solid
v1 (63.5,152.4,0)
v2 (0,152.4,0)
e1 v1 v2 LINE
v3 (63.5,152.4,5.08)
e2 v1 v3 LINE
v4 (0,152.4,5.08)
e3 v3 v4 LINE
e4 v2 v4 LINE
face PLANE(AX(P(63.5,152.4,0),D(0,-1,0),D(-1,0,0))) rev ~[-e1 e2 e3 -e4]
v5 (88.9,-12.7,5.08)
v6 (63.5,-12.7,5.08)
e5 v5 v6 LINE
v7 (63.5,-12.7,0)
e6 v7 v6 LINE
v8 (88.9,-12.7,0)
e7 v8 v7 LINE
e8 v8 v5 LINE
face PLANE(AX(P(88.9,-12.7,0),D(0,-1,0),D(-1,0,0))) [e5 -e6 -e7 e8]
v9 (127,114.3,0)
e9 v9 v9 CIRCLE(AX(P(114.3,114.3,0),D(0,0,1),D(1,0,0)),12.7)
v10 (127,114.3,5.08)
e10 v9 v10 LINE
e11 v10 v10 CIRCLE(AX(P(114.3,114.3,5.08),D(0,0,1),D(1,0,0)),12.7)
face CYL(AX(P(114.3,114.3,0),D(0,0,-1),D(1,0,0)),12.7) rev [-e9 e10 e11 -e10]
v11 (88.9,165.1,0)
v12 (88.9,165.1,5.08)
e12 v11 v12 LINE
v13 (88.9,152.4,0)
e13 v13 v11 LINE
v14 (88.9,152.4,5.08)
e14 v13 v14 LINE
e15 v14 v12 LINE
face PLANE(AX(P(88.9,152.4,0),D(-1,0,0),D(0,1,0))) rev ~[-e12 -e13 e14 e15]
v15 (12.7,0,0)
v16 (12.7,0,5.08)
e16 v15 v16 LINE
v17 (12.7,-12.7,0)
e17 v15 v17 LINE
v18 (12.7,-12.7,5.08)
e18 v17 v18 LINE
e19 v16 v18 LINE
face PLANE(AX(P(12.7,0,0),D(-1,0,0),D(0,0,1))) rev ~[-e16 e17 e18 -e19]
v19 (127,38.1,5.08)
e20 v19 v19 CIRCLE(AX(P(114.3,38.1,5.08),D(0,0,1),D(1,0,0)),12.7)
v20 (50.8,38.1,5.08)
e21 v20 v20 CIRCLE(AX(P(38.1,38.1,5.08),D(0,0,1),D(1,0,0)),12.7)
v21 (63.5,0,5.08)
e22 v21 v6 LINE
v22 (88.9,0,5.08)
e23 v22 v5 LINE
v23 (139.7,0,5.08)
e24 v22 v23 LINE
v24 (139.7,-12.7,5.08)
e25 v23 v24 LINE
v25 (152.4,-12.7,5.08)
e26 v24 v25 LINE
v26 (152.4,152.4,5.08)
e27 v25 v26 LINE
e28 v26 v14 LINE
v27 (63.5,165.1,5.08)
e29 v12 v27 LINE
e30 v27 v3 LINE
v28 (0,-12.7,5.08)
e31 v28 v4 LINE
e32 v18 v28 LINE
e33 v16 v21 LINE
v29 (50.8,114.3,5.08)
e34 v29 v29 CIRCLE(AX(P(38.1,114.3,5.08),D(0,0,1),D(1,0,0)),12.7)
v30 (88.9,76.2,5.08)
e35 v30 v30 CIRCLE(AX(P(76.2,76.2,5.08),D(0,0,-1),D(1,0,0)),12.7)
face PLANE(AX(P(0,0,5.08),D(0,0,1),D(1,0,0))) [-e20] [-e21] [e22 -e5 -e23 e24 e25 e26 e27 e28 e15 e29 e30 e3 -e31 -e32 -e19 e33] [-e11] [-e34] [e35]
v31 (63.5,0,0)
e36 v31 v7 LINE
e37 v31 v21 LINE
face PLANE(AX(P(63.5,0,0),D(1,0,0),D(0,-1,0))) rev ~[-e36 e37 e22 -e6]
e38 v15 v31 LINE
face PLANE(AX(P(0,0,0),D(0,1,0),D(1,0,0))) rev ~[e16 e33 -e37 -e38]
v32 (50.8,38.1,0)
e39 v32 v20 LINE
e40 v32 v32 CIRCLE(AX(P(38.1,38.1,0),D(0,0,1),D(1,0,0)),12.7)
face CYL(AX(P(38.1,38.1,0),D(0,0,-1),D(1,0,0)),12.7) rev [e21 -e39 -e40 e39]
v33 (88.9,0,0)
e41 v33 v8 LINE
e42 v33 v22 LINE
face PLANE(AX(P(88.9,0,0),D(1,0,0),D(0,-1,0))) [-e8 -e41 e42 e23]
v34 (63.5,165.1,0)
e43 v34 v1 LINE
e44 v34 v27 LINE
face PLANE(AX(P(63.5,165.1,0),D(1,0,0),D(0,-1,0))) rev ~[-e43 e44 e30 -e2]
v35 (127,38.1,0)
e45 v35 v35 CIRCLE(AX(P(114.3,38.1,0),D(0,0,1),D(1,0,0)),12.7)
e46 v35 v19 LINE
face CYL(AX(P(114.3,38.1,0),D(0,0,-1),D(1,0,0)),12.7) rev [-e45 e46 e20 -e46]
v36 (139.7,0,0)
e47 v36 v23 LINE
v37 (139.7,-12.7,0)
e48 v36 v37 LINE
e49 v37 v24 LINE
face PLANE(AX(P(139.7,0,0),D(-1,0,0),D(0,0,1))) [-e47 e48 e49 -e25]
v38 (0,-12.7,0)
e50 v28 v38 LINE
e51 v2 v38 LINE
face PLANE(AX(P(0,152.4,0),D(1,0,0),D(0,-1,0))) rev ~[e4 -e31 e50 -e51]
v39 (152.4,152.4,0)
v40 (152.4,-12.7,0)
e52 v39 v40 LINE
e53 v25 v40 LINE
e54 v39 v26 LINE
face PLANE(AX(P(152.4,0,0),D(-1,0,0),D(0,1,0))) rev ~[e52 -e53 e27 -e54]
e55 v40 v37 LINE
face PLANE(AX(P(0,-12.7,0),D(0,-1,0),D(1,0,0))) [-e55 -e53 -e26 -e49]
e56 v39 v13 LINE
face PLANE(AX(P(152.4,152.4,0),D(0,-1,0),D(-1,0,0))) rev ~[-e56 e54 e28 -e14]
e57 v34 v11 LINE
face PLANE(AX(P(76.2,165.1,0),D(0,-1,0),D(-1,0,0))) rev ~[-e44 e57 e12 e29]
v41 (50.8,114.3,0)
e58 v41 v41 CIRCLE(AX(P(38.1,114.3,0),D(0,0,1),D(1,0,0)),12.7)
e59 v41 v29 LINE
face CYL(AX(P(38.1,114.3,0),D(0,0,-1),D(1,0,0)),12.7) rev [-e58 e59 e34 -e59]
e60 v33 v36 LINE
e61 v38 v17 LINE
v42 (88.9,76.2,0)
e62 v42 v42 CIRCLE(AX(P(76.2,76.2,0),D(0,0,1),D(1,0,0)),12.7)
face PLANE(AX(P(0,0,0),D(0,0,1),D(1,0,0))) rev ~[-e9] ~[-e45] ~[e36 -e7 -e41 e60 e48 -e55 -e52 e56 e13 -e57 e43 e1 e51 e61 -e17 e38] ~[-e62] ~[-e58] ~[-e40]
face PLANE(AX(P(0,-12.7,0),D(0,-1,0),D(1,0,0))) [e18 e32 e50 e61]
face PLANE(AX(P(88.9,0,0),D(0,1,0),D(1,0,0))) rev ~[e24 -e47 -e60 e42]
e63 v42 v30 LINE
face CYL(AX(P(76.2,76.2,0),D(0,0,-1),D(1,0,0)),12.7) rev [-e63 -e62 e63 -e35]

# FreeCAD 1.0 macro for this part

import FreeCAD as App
import Part
import Sketcher
from FreeCAD import Vector
Q = App.Units.Quantity

doc = App.newDocument("Part")
params = doc.addObject("Spreadsheet::Sheet", "Params")
for row, (alias, value) in enumerate([
    ("sketch1_diameter", "1 in"),
    ("sketch1_width", "1 in"),
    ("sketch1_height", "6 in"),
    ("sketch1_width2", "2.5 in"),
    ("sketch1_height2", "0.5 in"),
    ("pad1_length", "0.2 in"),
    ("sketch2_width", "0.5 in"),
    ("sketch2_height", "0.2 in"),
    ("pad2_length", "0.5 in"),
], start=1):
    params.set(f"A{row}", alias)
    params.set(f"B{row}", "=" + value)
    params.setAlias(f"B{row}", alias)

body = doc.addObject("PartDesign::Body", "Body")

# Sketch on XY plane
sketch1 = body.newObject("Sketcher::SketchObject", "Sketch")
sketch1.AttachmentSupport = (doc.getObject("XY_Plane"), [""])
sketch1.MapMode = "FlatFace"
sketch1.addGeometry([
    Part.LineSegment(Vector(0, 152, 0), Vector(0, 0, 0)),  # 0
    Part.LineSegment(Vector(0, 0, 0), Vector(64, 0, 0)),  # 1
    Part.LineSegment(Vector(64, 0, 0), Vector(64, -13, 0)),  # 2
    Part.LineSegment(Vector(64, -13, 0), Vector(89, -13, 0)),  # 3
    Part.LineSegment(Vector(89, -13, 0), Vector(89, 0, 0)),  # 4
    Part.LineSegment(Vector(89, 0, 0), Vector(152, 0, 0)),  # 5
    Part.LineSegment(Vector(152, 0, 0), Vector(152, 152, 0)),  # 6
    Part.LineSegment(Vector(152, 152, 0), Vector(89, 152, 0)),  # 7
    Part.LineSegment(Vector(89, 152, 0), Vector(89, 165, 0)),  # 8
    Part.LineSegment(Vector(89, 165, 0), Vector(64, 165, 0)),  # 9
    Part.LineSegment(Vector(64, 165, 0), Vector(64, 152, 0)),  # 10
    Part.LineSegment(Vector(64, 152, 0), Vector(0, 152, 0)),  # 11
    Part.Circle(Vector(38, 38, 0), Vector(0, 0, 1), 13),  # 12
    Part.Circle(Vector(38, 114, 0), Vector(0, 0, 1), 13),  # 13
    Part.Circle(Vector(76, 76, 0), Vector(0, 0, 1), 13),  # 14
    Part.Circle(Vector(114, 38, 0), Vector(0, 0, 1), 13),  # 15
    Part.Circle(Vector(114, 114, 0), Vector(0, 0, 1), 13),  # 16
], False)
sketch1.addConstraint([
    Sketcher.Constraint("Coincident", 0, 2, 1, 1),
    Sketcher.Constraint("Coincident", 1, 2, 2, 1),
    Sketcher.Constraint("Coincident", 2, 2, 3, 1),
    Sketcher.Constraint("Coincident", 3, 2, 4, 1),
    Sketcher.Constraint("Coincident", 4, 2, 5, 1),
    Sketcher.Constraint("Coincident", 5, 2, 6, 1),
    Sketcher.Constraint("Coincident", 6, 2, 7, 1),
    Sketcher.Constraint("Coincident", 7, 2, 8, 1),
    Sketcher.Constraint("Coincident", 8, 2, 9, 1),
    Sketcher.Constraint("Coincident", 9, 2, 10, 1),
    Sketcher.Constraint("Coincident", 10, 2, 11, 1),
    Sketcher.Constraint("Coincident", 11, 2, 0, 1),
    Sketcher.Constraint("Vertical", 0),
    Sketcher.Constraint("Horizontal", 1),
    Sketcher.Constraint("Vertical", 2),
    Sketcher.Constraint("Horizontal", 3),
    Sketcher.Constraint("Vertical", 4),
    Sketcher.Constraint("Horizontal", 5),
    Sketcher.Constraint("Vertical", 6),
    Sketcher.Constraint("Horizontal", 7),
    Sketcher.Constraint("Vertical", 8),
    Sketcher.Constraint("Horizontal", 9),
    Sketcher.Constraint("Vertical", 10),
    Sketcher.Constraint("Horizontal", 11),
    Sketcher.Constraint("Coincident", 0, 2, -1, 1),
    Sketcher.Constraint("Equal", 12, 13),
    Sketcher.Constraint("Equal", 13, 14),
    Sketcher.Constraint("Equal", 14, 15),
    Sketcher.Constraint("Equal", 15, 16),
    Sketcher.Constraint("PointOnObject", 4, 2, -1),
    Sketcher.Constraint("Horizontal", 12, 3, 15, 3),
    Sketcher.Constraint("Horizontal", 13, 3, 16, 3),
    Sketcher.Constraint("Horizontal", 7, 2, 10, 2),
    Sketcher.Constraint("Vertical", 12, 3, 13, 3),
    Sketcher.Constraint("Vertical", 15, 3, 16, 3),
    Sketcher.Constraint("Vertical", 4, 2, 7, 2),
    Sketcher.Constraint("Vertical", 2, 2, 9, 2),
    Sketcher.Constraint("Equal", 1, 5),
    Sketcher.Constraint("Equal", 4, 8),
    Sketcher.Constraint("Diameter", 12, Q("1 in")),
    Sketcher.Constraint("DistanceX", 3, 1, 3, 2, Q("1 in")),
    Sketcher.Constraint("DistanceY", 0, 2, 0, 1, Q("6 in")),
    Sketcher.Constraint("DistanceX", 1, 1, 1, 2, Q("2.5 in")),
    Sketcher.Constraint("DistanceY", 2, 2, 2, 1, Q("0.5 in")),
    Sketcher.Constraint("DistanceX", -1, 1, 14, 3, Q("3 in")),
    Sketcher.Constraint("DistanceY", -1, 1, 14, 3, Q("3 in")),
    Sketcher.Constraint("DistanceY", 12, 3, 13, 3, Q("3 in")),
    Sketcher.Constraint("DistanceX", 12, 3, 15, 3, Q("3 in")),
    Sketcher.Constraint("DistanceX", 12, 3, 1, 2, Q("1 in")),
    Sketcher.Constraint("DistanceY", -1, 1, 12, 3, Q("1.5 in")),
])
sketch1.setExpression("Constraints[39]", "Params.sketch1_diameter")
sketch1.setExpression("Constraints[40]", "Params.sketch1_width")
sketch1.setExpression("Constraints[41]", "Params.sketch1_height")
sketch1.setExpression("Constraints[42]", "Params.sketch1_width2")
sketch1.setExpression("Constraints[43]", "Params.sketch1_height2")
pad1 = body.newObject("PartDesign::Pad", "Pad")
pad1.Profile = sketch1
pad1.setExpression("Length", "Params.pad1_length")

# Sketch on XZ plane
sketch2 = body.newObject("Sketcher::SketchObject", "Sketch001")
sketch2.AttachmentSupport = (doc.getObject("XZ_Plane"), [""])
sketch2.MapMode = "FlatFace"
sketch2.addGeometry([
    Part.LineSegment(Vector(13, 0, 0), Vector(13, 5, 0)),  # 0
    Part.LineSegment(Vector(13, 5, 0), Vector(0, 5, 0)),  # 1
    Part.LineSegment(Vector(0, 5, 0), Vector(0, 0, 0)),  # 2
    Part.LineSegment(Vector(0, 0, 0), Vector(13, 0, 0)),  # 3
    Part.LineSegment(Vector(152, 5, 0), Vector(140, 5, 0)),  # 4
    Part.LineSegment(Vector(140, 5, 0), Vector(140, 0, 0)),  # 5
    Part.LineSegment(Vector(140, 0, 0), Vector(152, 0, 0)),  # 6
    Part.LineSegment(Vector(152, 0, 0), Vector(152, 5, 0)),  # 7
], False)
sketch2.addConstraint([
    Sketcher.Constraint("Coincident", 0, 2, 1, 1),
    Sketcher.Constraint("Coincident", 1, 2, 2, 1),
    Sketcher.Constraint("Coincident", 2, 2, 3, 1),
    Sketcher.Constraint("Coincident", 3, 2, 0, 1),
    Sketcher.Constraint("Coincident", 4, 2, 5, 1),
    Sketcher.Constraint("Coincident", 5, 2, 6, 1),
    Sketcher.Constraint("Coincident", 6, 2, 7, 1),
    Sketcher.Constraint("Coincident", 7, 2, 4, 1),
    Sketcher.Constraint("Vertical", 0),
    Sketcher.Constraint("Horizontal", 1),
    Sketcher.Constraint("Vertical", 2),
    Sketcher.Constraint("Horizontal", 3),
    Sketcher.Constraint("Horizontal", 4),
    Sketcher.Constraint("Vertical", 5),
    Sketcher.Constraint("Horizontal", 6),
    Sketcher.Constraint("Vertical", 7),
    Sketcher.Constraint("Coincident", 2, 2, -1, 1),
    Sketcher.Constraint("PointOnObject", 5, 2, -1),
    Sketcher.Constraint("Horizontal", 1, 2, 4, 2),
    Sketcher.Constraint("Equal", 3, 4),
    Sketcher.Constraint("DistanceX", 1, 2, 1, 1, Q("0.5 in")),
    Sketcher.Constraint("DistanceY", 0, 1, 0, 2, Q("0.2 in")),
    Sketcher.Constraint("DistanceX", -1, 1, 6, 2, Q("6 in")),
])
sketch2.setExpression("Constraints[20]", "Params.sketch2_width")
sketch2.setExpression("Constraints[21]", "Params.sketch2_height")
pad2 = body.newObject("PartDesign::Pad", "Pad001")
pad2.Profile = sketch2
pad2.setExpression("Length", "Params.pad2_length")

doc.recompute()
